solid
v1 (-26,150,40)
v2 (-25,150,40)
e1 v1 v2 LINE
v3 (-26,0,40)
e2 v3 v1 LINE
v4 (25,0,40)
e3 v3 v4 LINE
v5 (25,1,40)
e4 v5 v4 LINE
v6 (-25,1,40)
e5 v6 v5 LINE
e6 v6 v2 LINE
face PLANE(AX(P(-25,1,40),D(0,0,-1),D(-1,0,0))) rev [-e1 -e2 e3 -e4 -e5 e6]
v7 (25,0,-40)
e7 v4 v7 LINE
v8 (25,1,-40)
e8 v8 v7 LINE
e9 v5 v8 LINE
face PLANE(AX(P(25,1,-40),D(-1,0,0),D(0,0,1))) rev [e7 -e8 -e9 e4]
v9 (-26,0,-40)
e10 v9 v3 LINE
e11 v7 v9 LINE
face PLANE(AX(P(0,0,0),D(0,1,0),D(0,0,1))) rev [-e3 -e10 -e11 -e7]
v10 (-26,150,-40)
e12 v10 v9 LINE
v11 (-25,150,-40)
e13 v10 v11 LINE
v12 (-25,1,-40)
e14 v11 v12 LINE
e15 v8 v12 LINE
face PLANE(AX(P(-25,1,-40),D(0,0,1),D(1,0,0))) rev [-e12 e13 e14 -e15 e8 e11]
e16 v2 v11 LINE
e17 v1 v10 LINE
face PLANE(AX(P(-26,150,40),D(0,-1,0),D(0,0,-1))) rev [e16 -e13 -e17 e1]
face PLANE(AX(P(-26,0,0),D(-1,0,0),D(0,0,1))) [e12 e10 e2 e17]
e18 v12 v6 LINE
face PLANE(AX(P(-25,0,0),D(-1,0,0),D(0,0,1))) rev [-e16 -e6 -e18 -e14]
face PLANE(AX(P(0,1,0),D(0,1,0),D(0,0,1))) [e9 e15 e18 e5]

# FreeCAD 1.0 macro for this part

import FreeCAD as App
import Part
import Sketcher

V = App.Vector
Q = App.Units.Quantity


def add_polygon(sketch, points):
    """Adds a closed chain of lines whose ends are joined by coincident constraints."""
    first, n = sketch.GeometryCount, len(points)
    for a, b in zip(points, points[1:] + points[:1]):
        sketch.addGeometry(Part.LineSegment(App.Vector(*a, 0), App.Vector(*b, 0)), False)
    for i in range(n):
        sketch.addConstraint(Sketcher.Constraint("Coincident", first + i, 2, first + (i + 1) % n, 1))

doc = App.newDocument("Part")
params = doc.addObject("Spreadsheet::Sheet", "Params")
for row, (alias, value) in enumerate([
    ("sketch1_width", "50 mm"),
    ("sketch1_height", "80 mm"),
    ("pad1_length", "1 mm"),
    ("sketch2_width", "150 mm"),
    ("sketch2_height", "80 mm"),
    ("pad2_length", "1 mm"),
], start=1):
    params.set(f"A{row}", alias)
    params.set(f"B{row}", "=" + value)
    params.setAlias(f"B{row}", alias)

body = doc.addObject("PartDesign::Body", "Body")

sketch1 = body.newObject("Sketcher::SketchObject", "Sketch")
sketch1.AttachmentSupport = (doc.getObject("XZ_Plane"), [""])
sketch1.MapMode = "FlatFace"
add_polygon(sketch1, [(-25, -40), (-25, 40), (25, 40), (25, -40)])
sketch1.addConstraint([
    Sketcher.Constraint("Vertical", 0),
    Sketcher.Constraint("Horizontal", 1),
    Sketcher.Constraint("Vertical", 2),
    Sketcher.Constraint("Horizontal", 3),
    Sketcher.Constraint("Symmetric", 0, 2, 2, 2, -1, 1),
    Sketcher.Constraint("DistanceX", 1, 1, 1, 2, Q("50 mm")),
    Sketcher.Constraint("DistanceY", 0, 1, 0, 2, Q("80 mm")),
])
sketch1.setExpression("Constraints[9]", "Params.sketch1_width")
sketch1.setExpression("Constraints[10]", "Params.sketch1_height")
pad1 = body.newObject("PartDesign::Pad", "Pad")
pad1.Profile = sketch1
pad1.setExpression("Length", "Params.pad1_length")
pad1.Reversed = True

sketch2 = body.newObject("Sketcher::SketchObject", "Sketch001")
sketch2.AttachmentSupport = (doc.getObject("YZ_Plane"), [""])
sketch2.MapMode = "FlatFace"
sketch2.AttachmentOffset = App.Placement(V(0, 0, -25), App.Rotation())
add_polygon(sketch2, [(150, -40), (0, -40), (0, 40), (150, 40)])
sketch2.addConstraint([
    Sketcher.Constraint("Horizontal", 0),
    Sketcher.Constraint("Vertical", 1),
    Sketcher.Constraint("Horizontal", 2),
    Sketcher.Constraint("Vertical", 3),
    Sketcher.Constraint("Symmetric", 0, 2, 1, 2, -1, 1),
    Sketcher.Constraint("DistanceX", 0, 2, 0, 1, Q("150 mm")),
    Sketcher.Constraint("DistanceY", 1, 1, 1, 2, Q("80 mm")),
])
sketch2.setExpression("Constraints[9]", "Params.sketch2_width")
sketch2.setExpression("Constraints[10]", "Params.sketch2_height")
pad2 = body.newObject("PartDesign::Pad", "Pad001")
pad2.Profile = sketch2
pad2.setExpression("Length", "Params.pad2_length")
pad2.Reversed = True

doc.recompute()
